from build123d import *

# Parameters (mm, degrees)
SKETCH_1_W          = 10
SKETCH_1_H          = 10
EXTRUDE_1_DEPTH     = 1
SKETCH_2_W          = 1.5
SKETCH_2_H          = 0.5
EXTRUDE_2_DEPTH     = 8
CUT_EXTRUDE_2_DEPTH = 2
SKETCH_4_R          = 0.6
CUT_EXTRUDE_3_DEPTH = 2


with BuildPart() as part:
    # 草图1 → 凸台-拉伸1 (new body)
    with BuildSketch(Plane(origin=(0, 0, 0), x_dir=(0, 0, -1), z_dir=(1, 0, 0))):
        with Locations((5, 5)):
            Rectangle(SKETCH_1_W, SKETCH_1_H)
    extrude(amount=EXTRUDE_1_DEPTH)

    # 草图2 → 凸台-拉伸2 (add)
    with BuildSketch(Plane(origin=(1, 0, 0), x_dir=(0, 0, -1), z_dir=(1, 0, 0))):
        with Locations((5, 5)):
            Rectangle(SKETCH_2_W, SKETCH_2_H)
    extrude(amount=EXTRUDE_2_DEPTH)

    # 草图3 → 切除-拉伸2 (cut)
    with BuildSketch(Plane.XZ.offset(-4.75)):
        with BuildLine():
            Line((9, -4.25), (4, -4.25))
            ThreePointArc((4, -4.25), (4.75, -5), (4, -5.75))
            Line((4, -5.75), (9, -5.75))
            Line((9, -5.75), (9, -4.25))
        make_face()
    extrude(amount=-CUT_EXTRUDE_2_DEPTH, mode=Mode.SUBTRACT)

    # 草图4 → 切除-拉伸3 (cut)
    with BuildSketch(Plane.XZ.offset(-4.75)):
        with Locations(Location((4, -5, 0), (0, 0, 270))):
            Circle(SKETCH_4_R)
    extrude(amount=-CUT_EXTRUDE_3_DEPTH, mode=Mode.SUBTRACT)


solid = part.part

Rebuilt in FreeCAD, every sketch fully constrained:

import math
import FreeCAD as App
import Part
import Sketcher
Q = App.Units.Quantity


def add_polygon(sketch, points):
    """Adds a closed chain of lines whose ends are joined by coincident constraints."""
    first, n = sketch.GeometryCount, len(points)
    for a, b in zip(points, points[1:] + points[:1]):
        sketch.addGeometry(Part.LineSegment(App.Vector(*a, 0), App.Vector(*b, 0)), False)
    for i in range(n):
        sketch.addConstraint(Sketcher.Constraint("Coincident", first + i, 2, first + (i + 1) % n, 1))

doc = App.newDocument("Part")
body = doc.addObject("PartDesign::Body", "Body")

sketch1 = body.newObject("Sketcher::SketchObject", "Sketch")
sketch1.AttachmentSupport = (doc.getObject("YZ_Plane"), [""])
sketch1.MapMode = "FlatFace"
add_polygon(sketch1, [(10, 0), (0, 0), (0, -10), (10, -10)])
sketch1.addConstraint([
    Sketcher.Constraint("Horizontal", 0),
    Sketcher.Constraint("Vertical", 1),
    Sketcher.Constraint("Horizontal", 2),
    Sketcher.Constraint("Vertical", 3),
    Sketcher.Constraint("Coincident", 0, 2, -1, 1),
    Sketcher.Constraint("Equal", 2, 1),
    Sketcher.Constraint("DistanceX", 0, 2, 0, 1, Q("10 mm")),
])
pad1 = body.newObject("PartDesign::Pad", "Pad")
pad1.Profile = sketch1
pad1.Length = 1

sketch2 = body.newObject("Sketcher::SketchObject", "Sketch001")
sketch2.AttachmentSupport = (doc.getObject("YZ_Plane"), [""])
sketch2.MapMode = "FlatFace"
sketch2.AttachmentOffset = App.Placement(App.Vector(0, 0, 1), App.Rotation())
add_polygon(sketch2, [(5.2, -4.2), (4.8, -4.2), (4.8, -5.8), (5.2, -5.8)])
sketch2.addConstraint([
    Sketcher.Constraint("Horizontal", 0),
    Sketcher.Constraint("Vertical", 1),
    Sketcher.Constraint("Horizontal", 2),
    Sketcher.Constraint("Vertical", 3),
    Sketcher.Constraint("DistanceX", 0, 2, 0, 1, Q("0.5 mm")),
    Sketcher.Constraint("DistanceY", 1, 2, 1, 1, Q("1.5 mm")),
    Sketcher.Constraint("DistanceX", -1, 1, 0, 2, Q("4.75 mm")),
    Sketcher.Constraint("DistanceY", 0, 2, -1, 1, Q("4.25 mm")),
])
pad2 = body.newObject("PartDesign::Pad", "Pad001")
pad2.Profile = sketch2
pad2.Length = 8

sketch3 = body.newObject("Sketcher::SketchObject", "Sketch002")
sketch3.AttachmentSupport = (doc.getObject("XZ_Plane"), [""])
sketch3.MapMode = "FlatFace"
sketch3.AttachmentOffset = App.Placement(App.Vector(0, 0, -4.75), App.Rotation())
sketch3.addGeometry([
    Part.LineSegment(App.Vector(9, -4.2, 0), App.Vector(4, -4.2, 0)),
    Part.ArcOfCircle(Part.Circle(App.Vector(4, -5, 0), App.Vector(0, 0, 1), 0.8), math.radians(-90), math.radians(90)),
    Part.LineSegment(App.Vector(4, -5.8, 0), App.Vector(9, -5.8, 0)),
    Part.LineSegment(App.Vector(9, -5.8, 0), App.Vector(9, -4.2, 0)),
], False)
sketch3.addConstraint([
    Sketcher.Constraint("Tangent", 0, 2, 1, 2),
    Sketcher.Constraint("Tangent", 1, 1, 2, 1),
    Sketcher.Constraint("Coincident", 2, 2, 3, 1),
    Sketcher.Constraint("Coincident", 3, 2, 0, 1),
    Sketcher.Constraint("Horizontal", 0),
    Sketcher.Constraint("Horizontal", 2),
    Sketcher.Constraint("Vertical", 3),
    Sketcher.Constraint("DistanceX", 0, 2, 0, 1, Q("5 mm")),
    Sketcher.Constraint("Radius", 1, Q("0.75 mm")),
    Sketcher.Constraint("DistanceX", -1, 1, 1, 3, Q("4 mm")),
    Sketcher.Constraint("DistanceY", 1, 3, -1, 1, Q("5 mm")),
])
pocket1 = body.newObject("PartDesign::Pocket", "Pocket")
pocket1.Profile = sketch3
pocket1.Length = 2

sketch4 = body.newObject("Sketcher::SketchObject", "Sketch003")
sketch4.AttachmentSupport = (doc.getObject("XZ_Plane"), [""])
sketch4.MapMode = "FlatFace"
sketch4.AttachmentOffset = App.Placement(App.Vector(0, 0, -4.75), App.Rotation())
sketch4.addGeometry(Part.Circle(App.Vector(4, -5, 0), App.Vector(0, 0, 1), 0.6), False)
sketch4.addConstraint([
    Sketcher.Constraint("Diameter", 0, Q("1.2 mm")),
    Sketcher.Constraint("DistanceX", -1, 1, 0, 3, Q("4 mm")),
    Sketcher.Constraint("DistanceY", 0, 3, -1, 1, Q("5 mm")),
])
pocket2 = body.newObject("PartDesign::Pocket", "Pocket001")
pocket2.Profile = sketch4
pocket2.Length = 2

doc.recompute()
